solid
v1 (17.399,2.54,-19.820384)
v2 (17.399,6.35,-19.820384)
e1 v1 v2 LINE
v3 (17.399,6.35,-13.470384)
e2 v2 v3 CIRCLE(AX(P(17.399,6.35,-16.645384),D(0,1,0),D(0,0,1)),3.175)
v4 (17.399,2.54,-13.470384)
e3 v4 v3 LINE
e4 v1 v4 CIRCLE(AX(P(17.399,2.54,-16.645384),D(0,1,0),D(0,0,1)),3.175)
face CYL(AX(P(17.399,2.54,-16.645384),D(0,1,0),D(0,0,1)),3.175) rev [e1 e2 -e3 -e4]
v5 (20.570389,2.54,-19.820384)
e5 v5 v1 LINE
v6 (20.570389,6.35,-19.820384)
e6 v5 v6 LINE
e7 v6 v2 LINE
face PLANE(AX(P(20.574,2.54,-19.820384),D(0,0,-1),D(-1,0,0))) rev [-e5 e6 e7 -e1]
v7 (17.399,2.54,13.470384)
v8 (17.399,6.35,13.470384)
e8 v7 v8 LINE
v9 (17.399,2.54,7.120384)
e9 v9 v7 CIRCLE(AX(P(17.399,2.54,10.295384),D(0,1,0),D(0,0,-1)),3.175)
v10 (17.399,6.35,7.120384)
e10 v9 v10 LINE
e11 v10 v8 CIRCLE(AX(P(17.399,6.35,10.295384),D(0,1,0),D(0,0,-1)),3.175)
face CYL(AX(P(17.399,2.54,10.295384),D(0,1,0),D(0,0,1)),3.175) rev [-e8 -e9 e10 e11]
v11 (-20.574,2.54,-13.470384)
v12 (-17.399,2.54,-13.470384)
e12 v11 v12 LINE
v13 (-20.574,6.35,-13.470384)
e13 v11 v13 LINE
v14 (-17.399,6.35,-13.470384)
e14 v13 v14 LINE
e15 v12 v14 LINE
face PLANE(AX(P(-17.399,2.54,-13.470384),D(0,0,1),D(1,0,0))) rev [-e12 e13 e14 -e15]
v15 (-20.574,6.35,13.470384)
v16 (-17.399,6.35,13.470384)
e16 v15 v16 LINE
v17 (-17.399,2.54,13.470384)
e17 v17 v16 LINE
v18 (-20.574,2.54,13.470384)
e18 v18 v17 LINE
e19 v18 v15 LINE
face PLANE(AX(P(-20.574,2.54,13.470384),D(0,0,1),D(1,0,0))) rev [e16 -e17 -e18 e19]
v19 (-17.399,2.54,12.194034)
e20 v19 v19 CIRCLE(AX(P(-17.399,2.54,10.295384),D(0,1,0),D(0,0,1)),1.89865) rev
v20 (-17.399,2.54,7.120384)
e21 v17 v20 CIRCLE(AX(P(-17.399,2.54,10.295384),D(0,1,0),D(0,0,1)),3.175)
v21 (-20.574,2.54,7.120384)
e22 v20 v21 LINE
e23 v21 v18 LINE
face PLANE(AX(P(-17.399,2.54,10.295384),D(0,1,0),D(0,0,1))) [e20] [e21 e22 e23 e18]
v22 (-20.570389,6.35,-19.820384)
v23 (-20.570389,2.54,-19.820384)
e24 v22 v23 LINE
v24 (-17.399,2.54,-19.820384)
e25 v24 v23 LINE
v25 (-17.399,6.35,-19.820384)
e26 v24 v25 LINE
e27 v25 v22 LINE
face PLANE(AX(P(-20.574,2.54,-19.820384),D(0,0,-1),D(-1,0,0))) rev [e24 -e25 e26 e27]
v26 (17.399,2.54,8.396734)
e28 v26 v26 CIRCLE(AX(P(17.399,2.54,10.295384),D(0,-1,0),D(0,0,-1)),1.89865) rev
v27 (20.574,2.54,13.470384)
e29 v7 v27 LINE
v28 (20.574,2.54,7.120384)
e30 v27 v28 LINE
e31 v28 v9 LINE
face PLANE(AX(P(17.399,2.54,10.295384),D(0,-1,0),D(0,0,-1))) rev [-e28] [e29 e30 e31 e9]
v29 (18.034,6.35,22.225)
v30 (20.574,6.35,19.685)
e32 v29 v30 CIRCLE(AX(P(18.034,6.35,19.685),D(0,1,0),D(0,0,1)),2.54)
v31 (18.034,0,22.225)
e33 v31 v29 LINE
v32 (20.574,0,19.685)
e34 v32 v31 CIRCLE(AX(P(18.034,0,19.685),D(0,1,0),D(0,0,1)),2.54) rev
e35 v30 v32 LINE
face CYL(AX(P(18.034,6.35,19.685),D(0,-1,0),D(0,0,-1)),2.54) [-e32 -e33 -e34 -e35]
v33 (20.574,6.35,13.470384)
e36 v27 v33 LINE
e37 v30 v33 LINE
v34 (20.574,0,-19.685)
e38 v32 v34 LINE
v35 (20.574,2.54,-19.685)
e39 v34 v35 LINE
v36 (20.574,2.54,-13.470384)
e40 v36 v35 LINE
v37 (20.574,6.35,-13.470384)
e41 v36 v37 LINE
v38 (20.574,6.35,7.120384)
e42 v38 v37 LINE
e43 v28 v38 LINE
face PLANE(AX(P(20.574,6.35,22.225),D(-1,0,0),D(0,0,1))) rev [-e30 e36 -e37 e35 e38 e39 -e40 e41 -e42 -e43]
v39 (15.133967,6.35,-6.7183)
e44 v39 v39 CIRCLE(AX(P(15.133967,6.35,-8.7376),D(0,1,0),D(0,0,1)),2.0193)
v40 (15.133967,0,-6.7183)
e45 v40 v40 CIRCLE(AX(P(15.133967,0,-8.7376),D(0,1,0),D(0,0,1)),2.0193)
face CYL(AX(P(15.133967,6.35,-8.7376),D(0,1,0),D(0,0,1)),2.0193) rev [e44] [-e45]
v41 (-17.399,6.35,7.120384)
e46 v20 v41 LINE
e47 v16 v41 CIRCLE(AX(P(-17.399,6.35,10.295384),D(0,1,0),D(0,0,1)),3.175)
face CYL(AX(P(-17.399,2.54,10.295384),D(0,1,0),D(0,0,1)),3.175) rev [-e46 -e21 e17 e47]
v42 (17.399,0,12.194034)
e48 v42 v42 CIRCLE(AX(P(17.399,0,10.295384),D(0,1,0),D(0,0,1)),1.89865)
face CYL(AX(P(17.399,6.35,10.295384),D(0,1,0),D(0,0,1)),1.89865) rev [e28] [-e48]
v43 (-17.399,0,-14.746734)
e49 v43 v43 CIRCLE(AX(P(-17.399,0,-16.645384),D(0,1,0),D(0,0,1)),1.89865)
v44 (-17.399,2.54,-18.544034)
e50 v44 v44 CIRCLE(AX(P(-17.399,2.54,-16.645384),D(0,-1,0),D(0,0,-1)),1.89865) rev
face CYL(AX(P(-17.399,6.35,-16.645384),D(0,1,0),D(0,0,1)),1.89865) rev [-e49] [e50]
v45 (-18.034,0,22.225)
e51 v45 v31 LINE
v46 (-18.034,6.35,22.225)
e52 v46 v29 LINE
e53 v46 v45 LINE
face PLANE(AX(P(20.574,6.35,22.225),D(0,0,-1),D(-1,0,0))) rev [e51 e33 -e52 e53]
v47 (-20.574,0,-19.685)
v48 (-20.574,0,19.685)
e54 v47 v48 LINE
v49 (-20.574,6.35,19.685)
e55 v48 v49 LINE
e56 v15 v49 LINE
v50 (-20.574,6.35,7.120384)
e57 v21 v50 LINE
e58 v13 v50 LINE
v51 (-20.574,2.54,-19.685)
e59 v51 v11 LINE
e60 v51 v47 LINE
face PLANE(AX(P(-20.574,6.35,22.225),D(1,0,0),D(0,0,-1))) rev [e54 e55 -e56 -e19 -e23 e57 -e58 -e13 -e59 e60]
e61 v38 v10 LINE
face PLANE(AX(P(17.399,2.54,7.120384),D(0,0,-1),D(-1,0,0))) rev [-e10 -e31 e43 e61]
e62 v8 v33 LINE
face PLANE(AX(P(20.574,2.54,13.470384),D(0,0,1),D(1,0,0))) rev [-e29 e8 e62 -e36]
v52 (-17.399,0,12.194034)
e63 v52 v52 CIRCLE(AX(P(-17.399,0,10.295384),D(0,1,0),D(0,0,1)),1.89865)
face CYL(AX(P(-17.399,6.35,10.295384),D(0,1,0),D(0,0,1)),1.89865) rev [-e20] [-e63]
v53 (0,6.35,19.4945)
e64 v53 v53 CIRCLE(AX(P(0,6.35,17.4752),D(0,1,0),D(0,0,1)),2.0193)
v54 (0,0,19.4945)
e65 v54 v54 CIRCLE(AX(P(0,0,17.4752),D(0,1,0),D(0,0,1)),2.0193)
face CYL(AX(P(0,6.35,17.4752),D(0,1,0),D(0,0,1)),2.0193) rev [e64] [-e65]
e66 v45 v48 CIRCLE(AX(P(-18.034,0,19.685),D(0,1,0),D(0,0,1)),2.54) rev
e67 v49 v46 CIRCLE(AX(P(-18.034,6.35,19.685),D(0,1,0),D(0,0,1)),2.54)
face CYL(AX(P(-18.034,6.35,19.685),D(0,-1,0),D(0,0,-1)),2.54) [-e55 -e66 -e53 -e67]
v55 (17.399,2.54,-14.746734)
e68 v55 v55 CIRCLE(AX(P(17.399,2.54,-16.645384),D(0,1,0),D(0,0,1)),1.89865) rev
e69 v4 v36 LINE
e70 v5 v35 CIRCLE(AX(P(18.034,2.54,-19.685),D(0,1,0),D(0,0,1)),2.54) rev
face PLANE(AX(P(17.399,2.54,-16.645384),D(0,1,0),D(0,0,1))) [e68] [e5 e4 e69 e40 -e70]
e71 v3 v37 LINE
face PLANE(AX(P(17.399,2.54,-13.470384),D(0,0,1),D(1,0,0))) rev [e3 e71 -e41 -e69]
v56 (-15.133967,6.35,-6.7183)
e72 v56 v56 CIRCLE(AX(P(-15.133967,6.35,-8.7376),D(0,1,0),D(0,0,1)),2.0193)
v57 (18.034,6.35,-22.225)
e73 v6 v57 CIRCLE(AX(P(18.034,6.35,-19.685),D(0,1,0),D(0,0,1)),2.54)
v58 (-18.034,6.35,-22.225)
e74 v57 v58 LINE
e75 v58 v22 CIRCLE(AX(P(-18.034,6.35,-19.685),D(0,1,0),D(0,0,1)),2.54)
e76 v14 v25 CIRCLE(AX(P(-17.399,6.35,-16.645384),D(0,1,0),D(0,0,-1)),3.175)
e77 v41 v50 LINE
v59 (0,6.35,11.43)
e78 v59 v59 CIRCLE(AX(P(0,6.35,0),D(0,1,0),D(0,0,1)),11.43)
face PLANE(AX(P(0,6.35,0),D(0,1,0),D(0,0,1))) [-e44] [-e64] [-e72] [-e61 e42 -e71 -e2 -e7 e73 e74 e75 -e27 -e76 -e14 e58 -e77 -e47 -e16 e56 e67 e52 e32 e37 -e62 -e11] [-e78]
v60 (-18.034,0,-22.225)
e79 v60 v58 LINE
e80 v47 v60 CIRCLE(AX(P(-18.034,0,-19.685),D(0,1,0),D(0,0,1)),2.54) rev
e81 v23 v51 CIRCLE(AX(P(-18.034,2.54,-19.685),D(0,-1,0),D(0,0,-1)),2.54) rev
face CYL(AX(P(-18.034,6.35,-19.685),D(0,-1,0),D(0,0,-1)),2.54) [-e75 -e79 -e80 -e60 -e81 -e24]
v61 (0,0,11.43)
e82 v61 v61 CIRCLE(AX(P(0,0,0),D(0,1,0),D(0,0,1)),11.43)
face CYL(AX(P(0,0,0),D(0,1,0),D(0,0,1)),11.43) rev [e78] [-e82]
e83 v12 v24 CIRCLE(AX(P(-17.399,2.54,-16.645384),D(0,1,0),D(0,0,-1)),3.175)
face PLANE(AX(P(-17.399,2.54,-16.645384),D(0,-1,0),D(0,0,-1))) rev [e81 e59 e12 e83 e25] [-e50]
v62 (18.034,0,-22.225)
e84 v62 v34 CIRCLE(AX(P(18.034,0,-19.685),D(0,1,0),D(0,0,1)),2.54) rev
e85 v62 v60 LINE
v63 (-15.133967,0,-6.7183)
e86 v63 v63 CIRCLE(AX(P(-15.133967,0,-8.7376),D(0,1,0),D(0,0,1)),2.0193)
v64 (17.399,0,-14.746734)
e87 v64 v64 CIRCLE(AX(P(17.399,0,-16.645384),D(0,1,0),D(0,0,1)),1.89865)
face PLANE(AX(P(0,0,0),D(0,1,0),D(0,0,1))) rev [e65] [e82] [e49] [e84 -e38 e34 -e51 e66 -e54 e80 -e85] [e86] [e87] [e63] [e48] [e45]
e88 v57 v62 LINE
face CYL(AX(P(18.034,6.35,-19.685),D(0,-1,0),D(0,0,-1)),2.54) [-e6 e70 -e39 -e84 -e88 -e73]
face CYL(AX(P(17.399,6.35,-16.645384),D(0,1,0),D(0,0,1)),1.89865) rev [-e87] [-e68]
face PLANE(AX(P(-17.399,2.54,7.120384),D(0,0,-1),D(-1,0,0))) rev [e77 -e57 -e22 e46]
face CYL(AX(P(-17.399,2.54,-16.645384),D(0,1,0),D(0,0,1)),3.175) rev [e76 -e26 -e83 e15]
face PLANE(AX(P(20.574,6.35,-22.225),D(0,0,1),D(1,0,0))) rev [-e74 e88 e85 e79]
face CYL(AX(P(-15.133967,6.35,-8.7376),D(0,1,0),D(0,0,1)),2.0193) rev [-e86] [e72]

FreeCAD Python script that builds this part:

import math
import FreeCAD as App
import Part
import Sketcher
from FreeCAD import Vector
Q = App.Units.Quantity


def edges_at(feature, points):
    """Names of the edges that pass closest to the given points."""
    edges = feature.Shape.Edges
    near = lambda p: min(range(len(edges)), key=lambda i: edges[i].distToShape(Part.Vertex(*p))[0])
    return sorted({f"Edge{near(p) + 1}" for p in points})


def add_polygon(sketch, points):
    """Adds a closed chain of lines whose ends are joined by coincident constraints."""
    first, n = sketch.GeometryCount, len(points)
    for a, b in zip(points, points[1:] + points[:1]):
        sketch.addGeometry(Part.LineSegment(App.Vector(*a, 0), App.Vector(*b, 0)), False)
    for i in range(n):
        sketch.addConstraint(Sketcher.Constraint("Coincident", first + i, 2, first + (i + 1) % n, 1))

doc = App.newDocument("Part")
body = doc.addObject("PartDesign::Body", "Body")

# Sketch on XZ plane
sketch1 = body.newObject("Sketcher::SketchObject", "Sketch")
sketch1.AttachmentSupport = (doc.getObject("XZ_Plane"), [""])
sketch1.MapMode = "FlatFace"
add_polygon(sketch1, [(-20.574, -22.225), (-20.574, 22.225), (20.574, 22.225), (20.574, -22.225)])  # lines 0-3
sketch1.addConstraint([
    Sketcher.Constraint("Vertical", 0),
    Sketcher.Constraint("Horizontal", 1),
    Sketcher.Constraint("Vertical", 2),
    Sketcher.Constraint("Horizontal", 3),
    Sketcher.Constraint("Symmetric", 0, 2, 2, 2, -1, 1),
    Sketcher.Constraint("DistanceX", 1, 1, 1, 2, Q("1.62 in")),
    Sketcher.Constraint("DistanceY", 0, 1, 0, 2, Q("1.75 in")),
])
pad1 = body.newObject("PartDesign::Pad", "Pad")
pad1.Profile = sketch1
pad1.Length = Q("0.25 in")
pad1.Reversed = True
doc.recompute()

fillet = body.newObject("PartDesign::Fillet", "Fillet")
fillet.Base = (pad1, edges_at(pad1, [
    (-20.574, 3.175, -22.225),
    (20.574, 3.175, -22.225),
    (20.574, 3.175, 22.225),
    (-20.574, 3.175, 22.225),
]))
fillet.Radius = Q("0.1 in")

# Sketch on XZ plane
sketch2 = body.newObject("Sketcher::SketchObject", "Sketch001")
sketch2.AttachmentSupport = (doc.getObject("XZ_Plane"), [""])
sketch2.MapMode = "FlatFace"
sketch2.AttachmentOffset = App.Placement(Vector(0, 0, -0.25 * 25.4), App.Rotation())
sketch2.addGeometry(Part.Circle(Vector(0, 0, 0), Vector(0, 0, 1), 11.43), False)
sketch2.addConstraint([
    Sketcher.Constraint("Coincident", 0, 3, -1, 1),
    Sketcher.Constraint("Diameter", 0, Q("0.9 in")),
])
pocket1 = body.newObject("PartDesign::Pocket", "Pocket")
pocket1.Profile = sketch2
pocket1.Type = "ThroughAll"
pocket1.Reversed = True

# Sketch on XZ plane
sketch3 = body.newObject("Sketcher::SketchObject", "Sketch002")
sketch3.AttachmentSupport = (doc.getObject("XZ_Plane"), [""])
sketch3.MapMode = "FlatFace"
sketch3.AttachmentOffset = App.Placement(Vector(0, 0, -0.25 * 25.4), App.Rotation())
sketch3.addGeometry([
    Part.Circle(Vector(-17.399, -16.645384, 0), Vector(0, 0, 1), 1.89865),
    Part.Circle(Vector(17.399, -16.645384, 0), Vector(0, 0, 1), 1.89865),
    Part.Circle(Vector(17.399, 10.295384, 0), Vector(0, 0, 1), 1.89865),
    Part.Circle(Vector(-17.399, 10.295384, 0), Vector(0, 0, 1), 1.89865),
], False)
sketch3.addConstraint([
    Sketcher.Constraint("Equal", 0, 1),
    Sketcher.Constraint("Equal", 1, 2),
    Sketcher.Constraint("Equal", 2, 3),
    Sketcher.Constraint("Symmetric", 0, 3, 1, 3, -2),
    Sketcher.Constraint("Symmetric", 2, 3, 3, 3, -2),
    Sketcher.Constraint("Vertical", 1, 3, 2, 3),
    Sketcher.Constraint("Diameter", 0, Q("0.1495 in")),
    Sketcher.Constraint("DistanceX", 0, 3, 1, 3, Q("1.37 in")),
    Sketcher.Constraint("DistanceY", 1, 3, 2, 3, 26.940768),
    Sketcher.Constraint("DistanceY", 0, 3, -1, 1, 16.645384),
])
doc.recompute()
hole = body.newObject("PartDesign::Hole", "Hole")
hole.Profile = sketch3
hole.ThreadType = "None"
hole.Diameter = Q("0.1495 in")
hole.DepthType = "ThroughAll"
hole.Reversed = True

# Sketch on XZ plane
sketch4 = body.newObject("Sketcher::SketchObject", "Sketch003")
sketch4.AttachmentSupport = (doc.getObject("XZ_Plane"), [""])
sketch4.MapMode = "FlatFace"
sketch4.AttachmentOffset = App.Placement(Vector(0, 0, -0.25 * 25.4), App.Rotation())
sketch4.addGeometry([
    Part.Circle(Vector(-15.133967, -8.7376, 0), Vector(0, 0, 1), 2.0193),
    Part.Circle(Vector(15.133967, -8.7376, 0), Vector(0, 0, 1), 2.0193),
    Part.Circle(Vector(0, 17.4752, 0), Vector(0, 0, 1), 2.0193),
], False)
sketch4.addConstraint([
    Sketcher.Constraint("Equal", 0, 1),
    Sketcher.Constraint("Equal", 1, 2),
    Sketcher.Constraint("Symmetric", 0, 3, 1, 3, -2),
    Sketcher.Constraint("PointOnObject", 2, 3, -2),
    Sketcher.Constraint("Diameter", 0, Q("0.159 in")),
    Sketcher.Constraint("DistanceY", 0, 3, -1, 1, Q("0.344 in")),
    Sketcher.Constraint("DistanceY", -1, 1, 2, 3, Q("0.688 in")),
    Sketcher.Constraint("DistanceX", 0, 3, -1, 1, 15.133967),
])
doc.recompute()
hole2 = body.newObject("PartDesign::Hole", "Hole001")
hole2.Profile = sketch4
hole2.ThreadType = "None"
hole2.Diameter = Q("0.159 in")
hole2.DepthType = "ThroughAll"
hole2.Reversed = True

# Sketch on XZ plane
sketch5 = body.newObject("Sketcher::SketchObject", "Sketch004")
sketch5.AttachmentSupport = (doc.getObject("XZ_Plane"), [""])
sketch5.MapMode = "FlatFace"
sketch5.AttachmentOffset = App.Placement(Vector(0, 0, -0.25 * 25.4), App.Rotation())
sketch5.addGeometry([
    Part.LineSegment(Vector(-20.574, -19.820384, 0), Vector(-20.574, -13.470384, 0)),  # 0
    Part.LineSegment(Vector(-20.574, -13.470384, 0), Vector(-17.399, -13.470384, 0)),  # 1
    Part.ArcOfCircle(Part.Circle(Vector(-17.399, -16.645384, 0), Vector(0, 0, 1), 3.175), math.radians(-90), math.radians(90)),  # 2
    Part.LineSegment(Vector(-17.399, -19.820384, 0), Vector(-20.574, -19.820384, 0)),  # 3
    Part.LineSegment(Vector(17.399, -13.470384, 0), Vector(20.574, -13.470384, 0)),  # 4
    Part.LineSegment(Vector(20.574, -13.470384, 0), Vector(20.574, -19.820384, 0)),  # 5
    Part.LineSegment(Vector(20.574, -19.820384, 0), Vector(17.399, -19.820384, 0)),  # 6
    Part.ArcOfCircle(Part.Circle(Vector(17.399, -16.645384, 0), Vector(0, 0, 1), 3.175), math.radians(90), math.radians(270)),  # 7
    Part.LineSegment(Vector(20.574, 13.470384, 0), Vector(20.574, 7.120384, 0)),  # 8
    Part.LineSegment(Vector(20.574, 7.120384, 0), Vector(17.399, 7.120384, 0)),  # 9
    Part.ArcOfCircle(Part.Circle(Vector(17.399, 10.295384, 0), Vector(0, 0, 1), 3.175), math.radians(90), math.radians(270)),  # 10
    Part.LineSegment(Vector(17.399, 13.470384, 0), Vector(20.574, 13.470384, 0)),  # 11
    Part.LineSegment(Vector(-17.399, 7.120384, 0), Vector(-20.574, 7.120384, 0)),  # 12
    Part.LineSegment(Vector(-20.574, 7.120384, 0), Vector(-20.574, 13.470384, 0)),  # 13
    Part.LineSegment(Vector(-20.574, 13.470384, 0), Vector(-17.399, 13.470384, 0)),  # 14
    Part.ArcOfCircle(Part.Circle(Vector(-17.399, 10.295384, 0), Vector(0, 0, 1), 3.175), math.radians(-90), math.radians(90)),  # 15
], False)
sketch5.addConstraint([
    Sketcher.Constraint("Coincident", 0, 2, 1, 1),
    Sketcher.Constraint("Tangent", 1, 2, 2, 2),
    Sketcher.Constraint("Tangent", 2, 1, 3, 1),
    Sketcher.Constraint("Coincident", 3, 2, 0, 1),
    Sketcher.Constraint("Coincident", 4, 2, 5, 1),
    Sketcher.Constraint("Coincident", 5, 2, 6, 1),
    Sketcher.Constraint("Tangent", 6, 2, 7, 2),
    Sketcher.Constraint("Tangent", 7, 1, 4, 1),
    Sketcher.Constraint("Coincident", 8, 2, 9, 1),
    Sketcher.Constraint("Tangent", 9, 2, 10, 2),
    Sketcher.Constraint("Tangent", 10, 1, 11, 1),
    Sketcher.Constraint("Coincident", 11, 2, 8, 1),
    Sketcher.Constraint("Coincident", 12, 2, 13, 1),
    Sketcher.Constraint("Coincident", 13, 2, 14, 1),
    Sketcher.Constraint("Tangent", 14, 2, 15, 2),
    Sketcher.Constraint("Tangent", 15, 1, 12, 1),
    Sketcher.Constraint("Vertical", 0),
    Sketcher.Constraint("Horizontal", 1),
    Sketcher.Constraint("Horizontal", 3),
    Sketcher.Constraint("Horizontal", 4),
    Sketcher.Constraint("Vertical", 5),
    Sketcher.Constraint("Horizontal", 6),
    Sketcher.Constraint("Vertical", 8),
    Sketcher.Constraint("Horizontal", 9),
    Sketcher.Constraint("Horizontal", 11),
    Sketcher.Constraint("Horizontal", 12),
    Sketcher.Constraint("Vertical", 13),
    Sketcher.Constraint("Horizontal", 14),
    Sketcher.Constraint("Equal", 2, 7),
    Sketcher.Constraint("Equal", 7, 10),
    Sketcher.Constraint("Equal", 10, 15),
    Sketcher.Constraint("Symmetric", 1, 2, 10, 1, -1, 1),
    Sketcher.Constraint("Symmetric", 4, 2, 13, 2, -1, 1),
    Sketcher.Constraint("Symmetric", 2, 3, 7, 3, -2),
    Sketcher.Constraint("Vertical", 2, 3, 15, 3),
    Sketcher.Constraint("Vertical", 5, 2, 8, 2),
    Sketcher.Constraint("Vertical", 3, 2, 12, 2),
    Sketcher.Constraint("Radius", 2, Q("0.125 in")),
    Sketcher.Constraint("DistanceX", 1, 1, 1, 2, Q("0.125 in")),
    Sketcher.Constraint("DistanceX", 0, 2, -1, 1, Q("0.81 in")),
    Sketcher.Constraint("DistanceY", 7, 3, 10, 3, 26.940769),
])
pocket2 = body.newObject("PartDesign::Pocket", "Pocket001")
pocket2.Profile = sketch5
pocket2.Length = Q("0.15 in")
pocket2.Reversed = True

doc.recompute()
